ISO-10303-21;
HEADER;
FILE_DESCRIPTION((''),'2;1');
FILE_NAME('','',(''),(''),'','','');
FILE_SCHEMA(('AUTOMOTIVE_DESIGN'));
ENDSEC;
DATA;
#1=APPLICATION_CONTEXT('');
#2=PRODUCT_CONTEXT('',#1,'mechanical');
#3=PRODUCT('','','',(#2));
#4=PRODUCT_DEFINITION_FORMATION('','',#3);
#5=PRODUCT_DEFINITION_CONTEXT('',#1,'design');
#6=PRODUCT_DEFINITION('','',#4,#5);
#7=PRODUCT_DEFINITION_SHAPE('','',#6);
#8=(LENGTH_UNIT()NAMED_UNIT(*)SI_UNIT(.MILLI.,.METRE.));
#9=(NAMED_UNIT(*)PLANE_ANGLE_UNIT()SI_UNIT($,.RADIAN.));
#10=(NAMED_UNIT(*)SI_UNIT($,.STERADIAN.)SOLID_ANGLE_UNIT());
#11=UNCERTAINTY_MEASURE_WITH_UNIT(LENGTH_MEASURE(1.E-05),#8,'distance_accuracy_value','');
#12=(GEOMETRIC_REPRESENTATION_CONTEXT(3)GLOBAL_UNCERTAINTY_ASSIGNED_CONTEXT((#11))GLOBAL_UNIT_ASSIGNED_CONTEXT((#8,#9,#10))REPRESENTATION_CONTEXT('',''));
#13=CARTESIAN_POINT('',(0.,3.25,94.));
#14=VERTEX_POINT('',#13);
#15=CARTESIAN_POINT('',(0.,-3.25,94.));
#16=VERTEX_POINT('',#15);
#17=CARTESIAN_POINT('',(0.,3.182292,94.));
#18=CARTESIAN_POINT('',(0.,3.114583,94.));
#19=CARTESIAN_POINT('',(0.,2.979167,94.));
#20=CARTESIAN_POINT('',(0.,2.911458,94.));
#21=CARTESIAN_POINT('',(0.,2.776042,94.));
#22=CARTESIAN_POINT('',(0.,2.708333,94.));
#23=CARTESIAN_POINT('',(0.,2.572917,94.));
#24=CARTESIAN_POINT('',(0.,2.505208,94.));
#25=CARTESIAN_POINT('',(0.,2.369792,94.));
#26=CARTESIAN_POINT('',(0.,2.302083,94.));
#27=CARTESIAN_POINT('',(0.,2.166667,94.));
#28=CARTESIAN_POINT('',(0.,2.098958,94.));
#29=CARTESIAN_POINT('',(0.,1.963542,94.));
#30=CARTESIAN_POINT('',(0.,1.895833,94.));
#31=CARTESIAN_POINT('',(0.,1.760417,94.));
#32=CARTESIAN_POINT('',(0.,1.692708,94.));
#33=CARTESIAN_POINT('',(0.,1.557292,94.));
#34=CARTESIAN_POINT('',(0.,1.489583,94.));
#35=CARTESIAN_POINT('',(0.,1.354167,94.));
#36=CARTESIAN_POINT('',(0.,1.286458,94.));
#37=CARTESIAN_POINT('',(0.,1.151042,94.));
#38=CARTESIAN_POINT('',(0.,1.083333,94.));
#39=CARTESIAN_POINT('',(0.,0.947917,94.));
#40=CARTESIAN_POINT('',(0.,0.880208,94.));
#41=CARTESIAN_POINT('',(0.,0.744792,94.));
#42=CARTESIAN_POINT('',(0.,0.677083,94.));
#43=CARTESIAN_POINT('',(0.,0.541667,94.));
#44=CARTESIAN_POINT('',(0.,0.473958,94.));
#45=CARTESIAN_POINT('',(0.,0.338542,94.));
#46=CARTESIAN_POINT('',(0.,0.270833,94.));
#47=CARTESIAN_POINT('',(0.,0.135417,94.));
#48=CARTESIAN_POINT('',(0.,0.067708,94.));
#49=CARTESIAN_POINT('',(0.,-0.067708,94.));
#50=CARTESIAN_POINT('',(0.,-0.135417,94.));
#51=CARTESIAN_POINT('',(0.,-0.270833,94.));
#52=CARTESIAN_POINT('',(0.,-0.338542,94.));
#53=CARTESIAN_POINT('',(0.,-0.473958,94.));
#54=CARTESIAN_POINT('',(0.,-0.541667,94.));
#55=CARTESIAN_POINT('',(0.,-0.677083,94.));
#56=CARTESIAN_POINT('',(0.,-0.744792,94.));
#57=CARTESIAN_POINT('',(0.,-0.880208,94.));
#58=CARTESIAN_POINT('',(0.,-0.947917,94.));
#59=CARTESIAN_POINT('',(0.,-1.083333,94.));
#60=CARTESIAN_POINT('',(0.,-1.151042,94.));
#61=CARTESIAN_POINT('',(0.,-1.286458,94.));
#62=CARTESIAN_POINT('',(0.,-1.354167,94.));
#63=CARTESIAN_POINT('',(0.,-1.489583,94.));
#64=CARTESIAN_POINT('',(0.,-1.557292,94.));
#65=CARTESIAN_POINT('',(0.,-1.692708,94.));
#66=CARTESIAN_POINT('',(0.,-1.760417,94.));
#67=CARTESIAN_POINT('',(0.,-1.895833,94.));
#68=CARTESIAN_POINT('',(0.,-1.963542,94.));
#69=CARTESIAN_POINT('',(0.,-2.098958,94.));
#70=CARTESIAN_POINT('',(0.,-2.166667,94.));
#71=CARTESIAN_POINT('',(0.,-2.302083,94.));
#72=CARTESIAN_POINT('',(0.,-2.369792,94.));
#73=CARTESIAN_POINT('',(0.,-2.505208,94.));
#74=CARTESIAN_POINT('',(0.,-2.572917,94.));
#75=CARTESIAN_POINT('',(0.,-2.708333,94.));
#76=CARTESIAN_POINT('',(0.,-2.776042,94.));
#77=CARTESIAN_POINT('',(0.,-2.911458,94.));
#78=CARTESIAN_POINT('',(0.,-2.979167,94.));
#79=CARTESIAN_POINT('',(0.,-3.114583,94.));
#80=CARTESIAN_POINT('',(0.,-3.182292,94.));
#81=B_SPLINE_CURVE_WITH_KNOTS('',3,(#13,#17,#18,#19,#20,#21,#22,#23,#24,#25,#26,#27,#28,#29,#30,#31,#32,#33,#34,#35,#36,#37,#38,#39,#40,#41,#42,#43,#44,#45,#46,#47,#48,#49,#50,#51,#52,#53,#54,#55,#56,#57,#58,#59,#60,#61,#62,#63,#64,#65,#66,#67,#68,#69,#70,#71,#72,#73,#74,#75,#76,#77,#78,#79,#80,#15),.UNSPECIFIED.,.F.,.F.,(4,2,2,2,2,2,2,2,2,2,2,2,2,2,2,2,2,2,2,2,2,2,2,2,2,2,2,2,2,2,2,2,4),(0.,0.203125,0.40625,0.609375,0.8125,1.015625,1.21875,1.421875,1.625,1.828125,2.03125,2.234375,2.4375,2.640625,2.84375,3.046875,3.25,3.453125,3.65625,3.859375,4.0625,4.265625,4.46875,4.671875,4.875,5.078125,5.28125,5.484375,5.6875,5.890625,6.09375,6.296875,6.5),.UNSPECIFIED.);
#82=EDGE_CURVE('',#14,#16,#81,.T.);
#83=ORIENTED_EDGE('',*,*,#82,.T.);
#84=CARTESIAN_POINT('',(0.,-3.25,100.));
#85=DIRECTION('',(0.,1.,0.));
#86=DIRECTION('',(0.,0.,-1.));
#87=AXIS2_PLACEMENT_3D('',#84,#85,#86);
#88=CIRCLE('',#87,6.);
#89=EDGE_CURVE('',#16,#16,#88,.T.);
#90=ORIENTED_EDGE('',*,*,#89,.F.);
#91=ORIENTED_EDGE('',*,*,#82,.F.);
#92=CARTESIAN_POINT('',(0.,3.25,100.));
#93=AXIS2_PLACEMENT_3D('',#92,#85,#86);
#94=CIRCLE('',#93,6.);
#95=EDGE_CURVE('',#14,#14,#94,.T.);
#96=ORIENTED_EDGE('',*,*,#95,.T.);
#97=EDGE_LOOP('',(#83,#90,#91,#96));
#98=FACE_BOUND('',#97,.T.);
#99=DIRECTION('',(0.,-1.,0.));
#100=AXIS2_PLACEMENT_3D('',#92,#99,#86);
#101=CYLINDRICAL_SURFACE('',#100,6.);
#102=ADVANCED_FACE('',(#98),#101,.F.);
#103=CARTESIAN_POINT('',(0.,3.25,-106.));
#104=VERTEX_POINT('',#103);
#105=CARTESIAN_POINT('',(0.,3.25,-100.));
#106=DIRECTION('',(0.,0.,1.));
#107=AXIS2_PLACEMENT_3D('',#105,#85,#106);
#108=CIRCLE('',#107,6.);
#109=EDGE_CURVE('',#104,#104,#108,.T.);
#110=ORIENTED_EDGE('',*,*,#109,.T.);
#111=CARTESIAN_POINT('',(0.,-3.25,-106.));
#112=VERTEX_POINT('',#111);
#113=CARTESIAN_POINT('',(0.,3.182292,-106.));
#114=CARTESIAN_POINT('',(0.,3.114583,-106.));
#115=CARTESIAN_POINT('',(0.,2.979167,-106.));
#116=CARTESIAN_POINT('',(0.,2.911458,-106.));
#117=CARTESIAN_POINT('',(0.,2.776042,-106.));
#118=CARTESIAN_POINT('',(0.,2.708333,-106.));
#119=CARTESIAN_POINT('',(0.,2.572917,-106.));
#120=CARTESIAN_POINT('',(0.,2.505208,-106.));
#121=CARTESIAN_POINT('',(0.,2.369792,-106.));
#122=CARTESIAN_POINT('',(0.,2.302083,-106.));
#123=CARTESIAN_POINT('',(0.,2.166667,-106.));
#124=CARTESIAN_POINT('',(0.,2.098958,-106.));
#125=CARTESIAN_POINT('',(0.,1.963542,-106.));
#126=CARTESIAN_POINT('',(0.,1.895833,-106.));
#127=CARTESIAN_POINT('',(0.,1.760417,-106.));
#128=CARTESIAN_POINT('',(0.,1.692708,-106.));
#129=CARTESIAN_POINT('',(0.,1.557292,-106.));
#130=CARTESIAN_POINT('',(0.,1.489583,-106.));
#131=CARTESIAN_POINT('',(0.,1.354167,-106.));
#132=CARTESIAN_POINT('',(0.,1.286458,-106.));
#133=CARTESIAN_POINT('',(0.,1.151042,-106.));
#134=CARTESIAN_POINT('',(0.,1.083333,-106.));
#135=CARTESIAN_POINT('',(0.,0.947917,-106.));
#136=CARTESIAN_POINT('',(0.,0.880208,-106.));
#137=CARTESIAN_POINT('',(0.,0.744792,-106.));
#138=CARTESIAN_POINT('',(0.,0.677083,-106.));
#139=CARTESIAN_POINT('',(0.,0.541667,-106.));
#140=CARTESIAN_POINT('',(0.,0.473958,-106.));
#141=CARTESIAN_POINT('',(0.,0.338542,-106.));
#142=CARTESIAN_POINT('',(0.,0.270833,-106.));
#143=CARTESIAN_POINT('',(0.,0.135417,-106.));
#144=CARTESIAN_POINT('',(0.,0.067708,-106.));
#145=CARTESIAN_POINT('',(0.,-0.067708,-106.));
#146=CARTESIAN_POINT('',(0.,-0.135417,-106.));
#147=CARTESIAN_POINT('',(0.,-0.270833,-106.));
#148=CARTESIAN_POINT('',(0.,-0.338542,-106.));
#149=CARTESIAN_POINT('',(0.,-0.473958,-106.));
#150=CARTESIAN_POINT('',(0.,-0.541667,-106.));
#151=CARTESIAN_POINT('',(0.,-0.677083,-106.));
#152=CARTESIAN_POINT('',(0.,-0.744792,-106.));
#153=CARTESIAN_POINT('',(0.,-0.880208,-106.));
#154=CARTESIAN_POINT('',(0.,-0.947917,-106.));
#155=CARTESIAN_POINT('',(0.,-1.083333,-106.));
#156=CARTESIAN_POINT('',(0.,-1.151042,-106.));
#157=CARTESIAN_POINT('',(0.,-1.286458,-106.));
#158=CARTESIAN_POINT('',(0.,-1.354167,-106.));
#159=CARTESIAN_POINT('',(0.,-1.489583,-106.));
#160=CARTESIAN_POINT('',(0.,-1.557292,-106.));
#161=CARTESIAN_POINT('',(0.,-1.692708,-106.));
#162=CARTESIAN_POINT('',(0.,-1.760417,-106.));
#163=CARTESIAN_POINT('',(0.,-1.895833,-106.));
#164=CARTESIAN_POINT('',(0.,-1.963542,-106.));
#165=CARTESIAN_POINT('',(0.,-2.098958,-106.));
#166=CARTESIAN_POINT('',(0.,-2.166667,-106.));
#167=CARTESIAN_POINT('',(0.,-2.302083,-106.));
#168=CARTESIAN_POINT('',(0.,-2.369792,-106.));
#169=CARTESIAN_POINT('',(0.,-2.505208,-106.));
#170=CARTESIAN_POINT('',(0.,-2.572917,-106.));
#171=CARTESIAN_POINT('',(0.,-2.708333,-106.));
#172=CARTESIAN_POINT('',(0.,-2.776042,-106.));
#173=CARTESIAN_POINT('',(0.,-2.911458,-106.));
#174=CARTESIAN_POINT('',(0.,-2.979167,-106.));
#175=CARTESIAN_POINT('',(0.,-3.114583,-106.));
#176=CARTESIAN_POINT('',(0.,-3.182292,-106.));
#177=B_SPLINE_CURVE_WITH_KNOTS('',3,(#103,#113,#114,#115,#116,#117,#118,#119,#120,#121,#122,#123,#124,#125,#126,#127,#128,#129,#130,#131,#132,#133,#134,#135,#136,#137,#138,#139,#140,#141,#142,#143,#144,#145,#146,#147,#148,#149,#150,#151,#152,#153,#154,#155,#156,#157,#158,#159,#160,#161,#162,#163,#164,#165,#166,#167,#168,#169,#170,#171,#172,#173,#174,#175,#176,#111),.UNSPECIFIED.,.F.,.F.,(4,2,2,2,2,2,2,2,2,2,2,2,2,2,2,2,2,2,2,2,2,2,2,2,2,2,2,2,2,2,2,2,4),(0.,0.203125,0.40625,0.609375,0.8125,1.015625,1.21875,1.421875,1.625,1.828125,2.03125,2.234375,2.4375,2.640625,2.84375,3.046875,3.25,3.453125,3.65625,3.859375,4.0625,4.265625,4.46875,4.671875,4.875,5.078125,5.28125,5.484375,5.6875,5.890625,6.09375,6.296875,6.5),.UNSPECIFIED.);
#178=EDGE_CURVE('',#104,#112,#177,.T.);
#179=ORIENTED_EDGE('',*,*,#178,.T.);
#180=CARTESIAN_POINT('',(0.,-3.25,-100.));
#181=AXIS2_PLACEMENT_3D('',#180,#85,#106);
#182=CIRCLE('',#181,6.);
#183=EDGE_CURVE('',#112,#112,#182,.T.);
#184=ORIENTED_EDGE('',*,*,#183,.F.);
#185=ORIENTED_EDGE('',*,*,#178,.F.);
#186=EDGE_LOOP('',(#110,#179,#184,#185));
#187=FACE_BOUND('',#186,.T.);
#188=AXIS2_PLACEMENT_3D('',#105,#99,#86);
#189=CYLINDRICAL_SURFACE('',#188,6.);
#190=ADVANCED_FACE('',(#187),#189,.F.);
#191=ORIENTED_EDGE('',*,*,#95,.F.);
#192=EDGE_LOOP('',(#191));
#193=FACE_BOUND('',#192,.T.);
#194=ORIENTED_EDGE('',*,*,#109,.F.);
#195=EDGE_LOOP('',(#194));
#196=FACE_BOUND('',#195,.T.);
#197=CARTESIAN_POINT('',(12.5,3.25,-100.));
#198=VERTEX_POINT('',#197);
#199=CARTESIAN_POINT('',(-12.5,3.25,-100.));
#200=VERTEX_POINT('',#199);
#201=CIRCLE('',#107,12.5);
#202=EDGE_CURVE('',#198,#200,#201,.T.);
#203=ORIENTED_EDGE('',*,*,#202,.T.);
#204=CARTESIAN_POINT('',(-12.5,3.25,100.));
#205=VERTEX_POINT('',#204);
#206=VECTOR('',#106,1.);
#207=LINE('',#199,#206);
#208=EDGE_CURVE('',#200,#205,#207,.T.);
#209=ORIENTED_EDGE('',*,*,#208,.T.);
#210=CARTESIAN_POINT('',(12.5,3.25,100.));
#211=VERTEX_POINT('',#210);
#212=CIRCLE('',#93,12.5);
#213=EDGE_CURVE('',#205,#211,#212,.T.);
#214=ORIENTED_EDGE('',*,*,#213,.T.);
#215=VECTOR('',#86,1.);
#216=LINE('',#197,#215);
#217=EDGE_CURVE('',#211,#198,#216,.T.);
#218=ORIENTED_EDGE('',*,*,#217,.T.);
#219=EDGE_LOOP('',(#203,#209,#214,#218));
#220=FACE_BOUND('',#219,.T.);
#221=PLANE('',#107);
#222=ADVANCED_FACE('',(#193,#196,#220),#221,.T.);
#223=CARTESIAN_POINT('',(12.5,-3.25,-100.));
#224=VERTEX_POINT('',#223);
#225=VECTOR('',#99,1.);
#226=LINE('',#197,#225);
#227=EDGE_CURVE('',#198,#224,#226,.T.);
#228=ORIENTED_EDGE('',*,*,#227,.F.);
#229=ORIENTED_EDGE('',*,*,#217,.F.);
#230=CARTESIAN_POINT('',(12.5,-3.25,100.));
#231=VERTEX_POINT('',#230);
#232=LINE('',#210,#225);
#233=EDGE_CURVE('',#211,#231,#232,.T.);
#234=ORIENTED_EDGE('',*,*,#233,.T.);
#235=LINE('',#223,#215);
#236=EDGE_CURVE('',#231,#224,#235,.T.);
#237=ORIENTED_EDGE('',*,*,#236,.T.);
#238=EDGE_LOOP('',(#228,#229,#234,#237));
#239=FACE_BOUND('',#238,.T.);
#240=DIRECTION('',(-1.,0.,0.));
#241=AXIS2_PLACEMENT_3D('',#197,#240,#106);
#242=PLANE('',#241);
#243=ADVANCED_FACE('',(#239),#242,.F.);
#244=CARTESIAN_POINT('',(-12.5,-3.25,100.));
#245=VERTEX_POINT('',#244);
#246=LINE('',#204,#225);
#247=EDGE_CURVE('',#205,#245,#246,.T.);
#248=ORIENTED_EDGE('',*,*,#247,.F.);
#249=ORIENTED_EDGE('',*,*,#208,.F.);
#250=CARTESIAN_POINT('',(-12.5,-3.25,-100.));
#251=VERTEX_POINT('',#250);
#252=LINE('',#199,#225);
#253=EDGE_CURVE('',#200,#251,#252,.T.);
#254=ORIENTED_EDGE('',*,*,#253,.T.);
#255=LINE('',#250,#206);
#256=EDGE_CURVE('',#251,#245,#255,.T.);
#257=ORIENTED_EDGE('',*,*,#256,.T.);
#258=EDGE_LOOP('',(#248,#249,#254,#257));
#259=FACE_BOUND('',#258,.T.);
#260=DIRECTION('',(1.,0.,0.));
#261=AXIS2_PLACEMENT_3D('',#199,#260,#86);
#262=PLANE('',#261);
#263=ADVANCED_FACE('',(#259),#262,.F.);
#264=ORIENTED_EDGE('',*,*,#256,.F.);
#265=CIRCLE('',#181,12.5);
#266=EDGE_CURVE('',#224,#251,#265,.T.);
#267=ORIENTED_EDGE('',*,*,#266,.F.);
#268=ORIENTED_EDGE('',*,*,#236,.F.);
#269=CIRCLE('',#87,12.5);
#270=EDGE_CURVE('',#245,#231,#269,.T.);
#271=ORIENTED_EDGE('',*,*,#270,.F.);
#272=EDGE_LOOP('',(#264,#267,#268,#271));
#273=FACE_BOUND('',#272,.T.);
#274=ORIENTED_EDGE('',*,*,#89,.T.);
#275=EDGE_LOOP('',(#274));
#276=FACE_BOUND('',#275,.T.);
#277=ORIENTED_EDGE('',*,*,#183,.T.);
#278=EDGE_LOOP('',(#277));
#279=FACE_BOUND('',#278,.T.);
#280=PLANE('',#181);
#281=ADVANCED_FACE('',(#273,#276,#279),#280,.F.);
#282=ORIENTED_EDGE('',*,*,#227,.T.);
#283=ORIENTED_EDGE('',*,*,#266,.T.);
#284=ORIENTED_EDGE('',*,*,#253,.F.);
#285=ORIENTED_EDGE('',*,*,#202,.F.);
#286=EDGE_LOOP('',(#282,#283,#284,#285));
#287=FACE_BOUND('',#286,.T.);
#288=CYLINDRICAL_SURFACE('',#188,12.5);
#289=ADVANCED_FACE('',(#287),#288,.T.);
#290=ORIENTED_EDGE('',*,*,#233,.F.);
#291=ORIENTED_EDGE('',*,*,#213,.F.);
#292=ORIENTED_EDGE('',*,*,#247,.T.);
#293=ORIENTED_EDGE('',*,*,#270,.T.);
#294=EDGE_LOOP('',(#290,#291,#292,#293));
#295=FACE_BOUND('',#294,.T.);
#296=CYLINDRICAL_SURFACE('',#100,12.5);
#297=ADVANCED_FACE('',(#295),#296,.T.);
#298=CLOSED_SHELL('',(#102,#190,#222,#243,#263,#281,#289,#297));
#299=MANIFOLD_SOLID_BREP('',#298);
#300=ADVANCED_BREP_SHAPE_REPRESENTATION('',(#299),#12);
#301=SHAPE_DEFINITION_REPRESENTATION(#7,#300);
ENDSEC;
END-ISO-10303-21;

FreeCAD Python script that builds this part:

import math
import FreeCAD as App
import Part
import Sketcher
from FreeCAD import Vector

doc = App.newDocument("Part")
params = doc.addObject("Spreadsheet::Sheet", "Params")
for row, (alias, value) in enumerate([
    ("sketch1_diameter", "12 mm"),
    ("sketch1_radius", "12.5 mm"),
    ("sketch1_height", "200 mm"),
    ("pad1_length", "6.5 mm"),
], start=1):
    params.set(f"A{row}", alias)
    params.set(f"B{row}", "=" + value)
    params.setAlias(f"B{row}", alias)

body = doc.addObject("PartDesign::Body", "Body")

sketch1 = doc.addObject("Sketcher::SketchObject", "Sketch")
body.addObject(sketch1)
sketch1.AttachmentSupport = (doc.XZ_Plane, [""])
sketch1.MapMode = "FlatFace"
sketch1.addGeometry(Part.LineSegment(Vector(-12, -100, 0), Vector(-12, 100, 0)), False)
sketch1.addGeometry(Part.ArcOfCircle(Part.Circle(Vector(0, 100, 0), Vector(0, 0, 1), 12), math.radians(0), math.radians(180)), False)
sketch1.addGeometry(Part.LineSegment(Vector(12, 100, 0), Vector(12, -100, 0)), False)
sketch1.addGeometry(Part.ArcOfCircle(Part.Circle(Vector(0, -100, 0), Vector(0, 0, 1), 12), math.radians(180), math.radians(360)), False)
sketch1.addGeometry(Part.Circle(Vector(0, 100, 0), Vector(0, 0, 1), 6), False)
sketch1.addGeometry(Part.Circle(Vector(0, -100, 0), Vector(0, 0, 1), 6), False)
sketch1.addConstraint(Sketcher.Constraint("Tangent", 0, 2, 1, 2))
sketch1.addConstraint(Sketcher.Constraint("Tangent", 1, 1, 2, 1))
sketch1.addConstraint(Sketcher.Constraint("Tangent", 2, 2, 3, 2))
sketch1.addConstraint(Sketcher.Constraint("Tangent", 3, 1, 0, 1))
sketch1.addConstraint(Sketcher.Constraint("Vertical", 0))
sketch1.addConstraint(Sketcher.Constraint("Vertical", 2))
sketch1.addConstraint(Sketcher.Constraint("Coincident", 4, 3, 1, 3))
sketch1.addConstraint(Sketcher.Constraint("Coincident", 5, 3, 3, 3))
sketch1.addConstraint(Sketcher.Constraint("Equal", 4, 5))
sketch1.addConstraint(Sketcher.Constraint("Symmetric", 1, 3, 3, 3, -1, 1))
sketch1.addConstraint(Sketcher.Constraint("Diameter", 4, 12.0))
sketch1.addConstraint(Sketcher.Constraint("Radius", 1, 12.5))
sketch1.addConstraint(Sketcher.Constraint("DistanceY", 0, 1, 0, 2, 200.0))
sketch1.setExpression("Constraints[10]", "Params.sketch1_diameter")
sketch1.setExpression("Constraints[11]", "Params.sketch1_radius")
sketch1.setExpression("Constraints[12]", "Params.sketch1_height")
pad1 = doc.addObject("PartDesign::Pad", "Pad")
body.addObject(pad1)
pad1.Profile = sketch1
pad1.setExpression("Length", "Params.pad1_length")
pad1.Midplane = True

doc.recompute()
